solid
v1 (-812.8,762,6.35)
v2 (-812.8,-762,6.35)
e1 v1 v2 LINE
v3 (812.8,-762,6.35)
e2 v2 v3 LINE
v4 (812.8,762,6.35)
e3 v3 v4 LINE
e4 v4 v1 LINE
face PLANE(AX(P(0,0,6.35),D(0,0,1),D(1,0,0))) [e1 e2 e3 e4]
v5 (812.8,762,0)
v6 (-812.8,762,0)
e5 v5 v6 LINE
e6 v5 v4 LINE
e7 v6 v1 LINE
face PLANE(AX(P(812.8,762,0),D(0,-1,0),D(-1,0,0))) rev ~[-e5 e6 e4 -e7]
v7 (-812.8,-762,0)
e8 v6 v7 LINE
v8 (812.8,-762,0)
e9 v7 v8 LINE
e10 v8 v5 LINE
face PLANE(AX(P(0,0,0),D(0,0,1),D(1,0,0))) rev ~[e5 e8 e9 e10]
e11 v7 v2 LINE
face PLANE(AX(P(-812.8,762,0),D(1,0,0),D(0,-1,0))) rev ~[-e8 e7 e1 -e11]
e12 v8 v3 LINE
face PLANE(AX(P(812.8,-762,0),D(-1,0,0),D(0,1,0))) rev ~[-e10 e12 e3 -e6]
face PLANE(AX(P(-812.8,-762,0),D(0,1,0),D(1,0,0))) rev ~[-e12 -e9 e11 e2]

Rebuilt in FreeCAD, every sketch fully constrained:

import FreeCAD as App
import Part
import Sketcher
Q = App.Units.Quantity


def add_polygon(sketch, points):
    """Adds a closed chain of lines whose ends are joined by coincident constraints."""
    first, n = sketch.GeometryCount, len(points)
    for a, b in zip(points, points[1:] + points[:1]):
        sketch.addGeometry(Part.LineSegment(App.Vector(*a, 0), App.Vector(*b, 0)), False)
    for i in range(n):
        sketch.addConstraint(Sketcher.Constraint("Coincident", first + i, 2, first + (i + 1) % n, 1))

doc = App.newDocument("Part")
params = doc.addObject("Spreadsheet::Sheet", "Params")
for row, (alias, value) in enumerate([
    ("sketch1_height", "60 in"),
    ("pad1_length", "0.25 in"),
], start=1):
    params.set(f"A{row}", alias)
    params.set(f"B{row}", "=" + value)
    params.setAlias(f"B{row}", alias)

body = doc.addObject("PartDesign::Body", "Body")

# Sketch on XY plane
sketch1 = body.newObject("Sketcher::SketchObject", "Sketch")
sketch1.AttachmentSupport = (doc.getObject("XY_Plane"), [""])
sketch1.MapMode = "FlatFace"
add_polygon(sketch1, [(-812.8, 762), (-812.8, -762), (812.8, -762), (812.8, 762)])  # lines 0-3
sketch1.addConstraint([
    Sketcher.Constraint("Vertical", 0),
    Sketcher.Constraint("Horizontal", 1),
    Sketcher.Constraint("Vertical", 2),
    Sketcher.Constraint("Horizontal", 3),
    Sketcher.Constraint("Symmetric", 0, 2, 2, 2, -1, 1),
    Sketcher.Constraint("DistanceX", 0, 2, -1, 1, Q("32 in")),
    Sketcher.Constraint("DistanceY", 0, 2, 0, 1, Q("60 in")),
])
sketch1.setExpression("Constraints[10]", "Params.sketch1_height")
pad1 = body.newObject("PartDesign::Pad", "Pad")
pad1.Profile = sketch1
pad1.setExpression("Length", "Params.pad1_length")

doc.recompute()
